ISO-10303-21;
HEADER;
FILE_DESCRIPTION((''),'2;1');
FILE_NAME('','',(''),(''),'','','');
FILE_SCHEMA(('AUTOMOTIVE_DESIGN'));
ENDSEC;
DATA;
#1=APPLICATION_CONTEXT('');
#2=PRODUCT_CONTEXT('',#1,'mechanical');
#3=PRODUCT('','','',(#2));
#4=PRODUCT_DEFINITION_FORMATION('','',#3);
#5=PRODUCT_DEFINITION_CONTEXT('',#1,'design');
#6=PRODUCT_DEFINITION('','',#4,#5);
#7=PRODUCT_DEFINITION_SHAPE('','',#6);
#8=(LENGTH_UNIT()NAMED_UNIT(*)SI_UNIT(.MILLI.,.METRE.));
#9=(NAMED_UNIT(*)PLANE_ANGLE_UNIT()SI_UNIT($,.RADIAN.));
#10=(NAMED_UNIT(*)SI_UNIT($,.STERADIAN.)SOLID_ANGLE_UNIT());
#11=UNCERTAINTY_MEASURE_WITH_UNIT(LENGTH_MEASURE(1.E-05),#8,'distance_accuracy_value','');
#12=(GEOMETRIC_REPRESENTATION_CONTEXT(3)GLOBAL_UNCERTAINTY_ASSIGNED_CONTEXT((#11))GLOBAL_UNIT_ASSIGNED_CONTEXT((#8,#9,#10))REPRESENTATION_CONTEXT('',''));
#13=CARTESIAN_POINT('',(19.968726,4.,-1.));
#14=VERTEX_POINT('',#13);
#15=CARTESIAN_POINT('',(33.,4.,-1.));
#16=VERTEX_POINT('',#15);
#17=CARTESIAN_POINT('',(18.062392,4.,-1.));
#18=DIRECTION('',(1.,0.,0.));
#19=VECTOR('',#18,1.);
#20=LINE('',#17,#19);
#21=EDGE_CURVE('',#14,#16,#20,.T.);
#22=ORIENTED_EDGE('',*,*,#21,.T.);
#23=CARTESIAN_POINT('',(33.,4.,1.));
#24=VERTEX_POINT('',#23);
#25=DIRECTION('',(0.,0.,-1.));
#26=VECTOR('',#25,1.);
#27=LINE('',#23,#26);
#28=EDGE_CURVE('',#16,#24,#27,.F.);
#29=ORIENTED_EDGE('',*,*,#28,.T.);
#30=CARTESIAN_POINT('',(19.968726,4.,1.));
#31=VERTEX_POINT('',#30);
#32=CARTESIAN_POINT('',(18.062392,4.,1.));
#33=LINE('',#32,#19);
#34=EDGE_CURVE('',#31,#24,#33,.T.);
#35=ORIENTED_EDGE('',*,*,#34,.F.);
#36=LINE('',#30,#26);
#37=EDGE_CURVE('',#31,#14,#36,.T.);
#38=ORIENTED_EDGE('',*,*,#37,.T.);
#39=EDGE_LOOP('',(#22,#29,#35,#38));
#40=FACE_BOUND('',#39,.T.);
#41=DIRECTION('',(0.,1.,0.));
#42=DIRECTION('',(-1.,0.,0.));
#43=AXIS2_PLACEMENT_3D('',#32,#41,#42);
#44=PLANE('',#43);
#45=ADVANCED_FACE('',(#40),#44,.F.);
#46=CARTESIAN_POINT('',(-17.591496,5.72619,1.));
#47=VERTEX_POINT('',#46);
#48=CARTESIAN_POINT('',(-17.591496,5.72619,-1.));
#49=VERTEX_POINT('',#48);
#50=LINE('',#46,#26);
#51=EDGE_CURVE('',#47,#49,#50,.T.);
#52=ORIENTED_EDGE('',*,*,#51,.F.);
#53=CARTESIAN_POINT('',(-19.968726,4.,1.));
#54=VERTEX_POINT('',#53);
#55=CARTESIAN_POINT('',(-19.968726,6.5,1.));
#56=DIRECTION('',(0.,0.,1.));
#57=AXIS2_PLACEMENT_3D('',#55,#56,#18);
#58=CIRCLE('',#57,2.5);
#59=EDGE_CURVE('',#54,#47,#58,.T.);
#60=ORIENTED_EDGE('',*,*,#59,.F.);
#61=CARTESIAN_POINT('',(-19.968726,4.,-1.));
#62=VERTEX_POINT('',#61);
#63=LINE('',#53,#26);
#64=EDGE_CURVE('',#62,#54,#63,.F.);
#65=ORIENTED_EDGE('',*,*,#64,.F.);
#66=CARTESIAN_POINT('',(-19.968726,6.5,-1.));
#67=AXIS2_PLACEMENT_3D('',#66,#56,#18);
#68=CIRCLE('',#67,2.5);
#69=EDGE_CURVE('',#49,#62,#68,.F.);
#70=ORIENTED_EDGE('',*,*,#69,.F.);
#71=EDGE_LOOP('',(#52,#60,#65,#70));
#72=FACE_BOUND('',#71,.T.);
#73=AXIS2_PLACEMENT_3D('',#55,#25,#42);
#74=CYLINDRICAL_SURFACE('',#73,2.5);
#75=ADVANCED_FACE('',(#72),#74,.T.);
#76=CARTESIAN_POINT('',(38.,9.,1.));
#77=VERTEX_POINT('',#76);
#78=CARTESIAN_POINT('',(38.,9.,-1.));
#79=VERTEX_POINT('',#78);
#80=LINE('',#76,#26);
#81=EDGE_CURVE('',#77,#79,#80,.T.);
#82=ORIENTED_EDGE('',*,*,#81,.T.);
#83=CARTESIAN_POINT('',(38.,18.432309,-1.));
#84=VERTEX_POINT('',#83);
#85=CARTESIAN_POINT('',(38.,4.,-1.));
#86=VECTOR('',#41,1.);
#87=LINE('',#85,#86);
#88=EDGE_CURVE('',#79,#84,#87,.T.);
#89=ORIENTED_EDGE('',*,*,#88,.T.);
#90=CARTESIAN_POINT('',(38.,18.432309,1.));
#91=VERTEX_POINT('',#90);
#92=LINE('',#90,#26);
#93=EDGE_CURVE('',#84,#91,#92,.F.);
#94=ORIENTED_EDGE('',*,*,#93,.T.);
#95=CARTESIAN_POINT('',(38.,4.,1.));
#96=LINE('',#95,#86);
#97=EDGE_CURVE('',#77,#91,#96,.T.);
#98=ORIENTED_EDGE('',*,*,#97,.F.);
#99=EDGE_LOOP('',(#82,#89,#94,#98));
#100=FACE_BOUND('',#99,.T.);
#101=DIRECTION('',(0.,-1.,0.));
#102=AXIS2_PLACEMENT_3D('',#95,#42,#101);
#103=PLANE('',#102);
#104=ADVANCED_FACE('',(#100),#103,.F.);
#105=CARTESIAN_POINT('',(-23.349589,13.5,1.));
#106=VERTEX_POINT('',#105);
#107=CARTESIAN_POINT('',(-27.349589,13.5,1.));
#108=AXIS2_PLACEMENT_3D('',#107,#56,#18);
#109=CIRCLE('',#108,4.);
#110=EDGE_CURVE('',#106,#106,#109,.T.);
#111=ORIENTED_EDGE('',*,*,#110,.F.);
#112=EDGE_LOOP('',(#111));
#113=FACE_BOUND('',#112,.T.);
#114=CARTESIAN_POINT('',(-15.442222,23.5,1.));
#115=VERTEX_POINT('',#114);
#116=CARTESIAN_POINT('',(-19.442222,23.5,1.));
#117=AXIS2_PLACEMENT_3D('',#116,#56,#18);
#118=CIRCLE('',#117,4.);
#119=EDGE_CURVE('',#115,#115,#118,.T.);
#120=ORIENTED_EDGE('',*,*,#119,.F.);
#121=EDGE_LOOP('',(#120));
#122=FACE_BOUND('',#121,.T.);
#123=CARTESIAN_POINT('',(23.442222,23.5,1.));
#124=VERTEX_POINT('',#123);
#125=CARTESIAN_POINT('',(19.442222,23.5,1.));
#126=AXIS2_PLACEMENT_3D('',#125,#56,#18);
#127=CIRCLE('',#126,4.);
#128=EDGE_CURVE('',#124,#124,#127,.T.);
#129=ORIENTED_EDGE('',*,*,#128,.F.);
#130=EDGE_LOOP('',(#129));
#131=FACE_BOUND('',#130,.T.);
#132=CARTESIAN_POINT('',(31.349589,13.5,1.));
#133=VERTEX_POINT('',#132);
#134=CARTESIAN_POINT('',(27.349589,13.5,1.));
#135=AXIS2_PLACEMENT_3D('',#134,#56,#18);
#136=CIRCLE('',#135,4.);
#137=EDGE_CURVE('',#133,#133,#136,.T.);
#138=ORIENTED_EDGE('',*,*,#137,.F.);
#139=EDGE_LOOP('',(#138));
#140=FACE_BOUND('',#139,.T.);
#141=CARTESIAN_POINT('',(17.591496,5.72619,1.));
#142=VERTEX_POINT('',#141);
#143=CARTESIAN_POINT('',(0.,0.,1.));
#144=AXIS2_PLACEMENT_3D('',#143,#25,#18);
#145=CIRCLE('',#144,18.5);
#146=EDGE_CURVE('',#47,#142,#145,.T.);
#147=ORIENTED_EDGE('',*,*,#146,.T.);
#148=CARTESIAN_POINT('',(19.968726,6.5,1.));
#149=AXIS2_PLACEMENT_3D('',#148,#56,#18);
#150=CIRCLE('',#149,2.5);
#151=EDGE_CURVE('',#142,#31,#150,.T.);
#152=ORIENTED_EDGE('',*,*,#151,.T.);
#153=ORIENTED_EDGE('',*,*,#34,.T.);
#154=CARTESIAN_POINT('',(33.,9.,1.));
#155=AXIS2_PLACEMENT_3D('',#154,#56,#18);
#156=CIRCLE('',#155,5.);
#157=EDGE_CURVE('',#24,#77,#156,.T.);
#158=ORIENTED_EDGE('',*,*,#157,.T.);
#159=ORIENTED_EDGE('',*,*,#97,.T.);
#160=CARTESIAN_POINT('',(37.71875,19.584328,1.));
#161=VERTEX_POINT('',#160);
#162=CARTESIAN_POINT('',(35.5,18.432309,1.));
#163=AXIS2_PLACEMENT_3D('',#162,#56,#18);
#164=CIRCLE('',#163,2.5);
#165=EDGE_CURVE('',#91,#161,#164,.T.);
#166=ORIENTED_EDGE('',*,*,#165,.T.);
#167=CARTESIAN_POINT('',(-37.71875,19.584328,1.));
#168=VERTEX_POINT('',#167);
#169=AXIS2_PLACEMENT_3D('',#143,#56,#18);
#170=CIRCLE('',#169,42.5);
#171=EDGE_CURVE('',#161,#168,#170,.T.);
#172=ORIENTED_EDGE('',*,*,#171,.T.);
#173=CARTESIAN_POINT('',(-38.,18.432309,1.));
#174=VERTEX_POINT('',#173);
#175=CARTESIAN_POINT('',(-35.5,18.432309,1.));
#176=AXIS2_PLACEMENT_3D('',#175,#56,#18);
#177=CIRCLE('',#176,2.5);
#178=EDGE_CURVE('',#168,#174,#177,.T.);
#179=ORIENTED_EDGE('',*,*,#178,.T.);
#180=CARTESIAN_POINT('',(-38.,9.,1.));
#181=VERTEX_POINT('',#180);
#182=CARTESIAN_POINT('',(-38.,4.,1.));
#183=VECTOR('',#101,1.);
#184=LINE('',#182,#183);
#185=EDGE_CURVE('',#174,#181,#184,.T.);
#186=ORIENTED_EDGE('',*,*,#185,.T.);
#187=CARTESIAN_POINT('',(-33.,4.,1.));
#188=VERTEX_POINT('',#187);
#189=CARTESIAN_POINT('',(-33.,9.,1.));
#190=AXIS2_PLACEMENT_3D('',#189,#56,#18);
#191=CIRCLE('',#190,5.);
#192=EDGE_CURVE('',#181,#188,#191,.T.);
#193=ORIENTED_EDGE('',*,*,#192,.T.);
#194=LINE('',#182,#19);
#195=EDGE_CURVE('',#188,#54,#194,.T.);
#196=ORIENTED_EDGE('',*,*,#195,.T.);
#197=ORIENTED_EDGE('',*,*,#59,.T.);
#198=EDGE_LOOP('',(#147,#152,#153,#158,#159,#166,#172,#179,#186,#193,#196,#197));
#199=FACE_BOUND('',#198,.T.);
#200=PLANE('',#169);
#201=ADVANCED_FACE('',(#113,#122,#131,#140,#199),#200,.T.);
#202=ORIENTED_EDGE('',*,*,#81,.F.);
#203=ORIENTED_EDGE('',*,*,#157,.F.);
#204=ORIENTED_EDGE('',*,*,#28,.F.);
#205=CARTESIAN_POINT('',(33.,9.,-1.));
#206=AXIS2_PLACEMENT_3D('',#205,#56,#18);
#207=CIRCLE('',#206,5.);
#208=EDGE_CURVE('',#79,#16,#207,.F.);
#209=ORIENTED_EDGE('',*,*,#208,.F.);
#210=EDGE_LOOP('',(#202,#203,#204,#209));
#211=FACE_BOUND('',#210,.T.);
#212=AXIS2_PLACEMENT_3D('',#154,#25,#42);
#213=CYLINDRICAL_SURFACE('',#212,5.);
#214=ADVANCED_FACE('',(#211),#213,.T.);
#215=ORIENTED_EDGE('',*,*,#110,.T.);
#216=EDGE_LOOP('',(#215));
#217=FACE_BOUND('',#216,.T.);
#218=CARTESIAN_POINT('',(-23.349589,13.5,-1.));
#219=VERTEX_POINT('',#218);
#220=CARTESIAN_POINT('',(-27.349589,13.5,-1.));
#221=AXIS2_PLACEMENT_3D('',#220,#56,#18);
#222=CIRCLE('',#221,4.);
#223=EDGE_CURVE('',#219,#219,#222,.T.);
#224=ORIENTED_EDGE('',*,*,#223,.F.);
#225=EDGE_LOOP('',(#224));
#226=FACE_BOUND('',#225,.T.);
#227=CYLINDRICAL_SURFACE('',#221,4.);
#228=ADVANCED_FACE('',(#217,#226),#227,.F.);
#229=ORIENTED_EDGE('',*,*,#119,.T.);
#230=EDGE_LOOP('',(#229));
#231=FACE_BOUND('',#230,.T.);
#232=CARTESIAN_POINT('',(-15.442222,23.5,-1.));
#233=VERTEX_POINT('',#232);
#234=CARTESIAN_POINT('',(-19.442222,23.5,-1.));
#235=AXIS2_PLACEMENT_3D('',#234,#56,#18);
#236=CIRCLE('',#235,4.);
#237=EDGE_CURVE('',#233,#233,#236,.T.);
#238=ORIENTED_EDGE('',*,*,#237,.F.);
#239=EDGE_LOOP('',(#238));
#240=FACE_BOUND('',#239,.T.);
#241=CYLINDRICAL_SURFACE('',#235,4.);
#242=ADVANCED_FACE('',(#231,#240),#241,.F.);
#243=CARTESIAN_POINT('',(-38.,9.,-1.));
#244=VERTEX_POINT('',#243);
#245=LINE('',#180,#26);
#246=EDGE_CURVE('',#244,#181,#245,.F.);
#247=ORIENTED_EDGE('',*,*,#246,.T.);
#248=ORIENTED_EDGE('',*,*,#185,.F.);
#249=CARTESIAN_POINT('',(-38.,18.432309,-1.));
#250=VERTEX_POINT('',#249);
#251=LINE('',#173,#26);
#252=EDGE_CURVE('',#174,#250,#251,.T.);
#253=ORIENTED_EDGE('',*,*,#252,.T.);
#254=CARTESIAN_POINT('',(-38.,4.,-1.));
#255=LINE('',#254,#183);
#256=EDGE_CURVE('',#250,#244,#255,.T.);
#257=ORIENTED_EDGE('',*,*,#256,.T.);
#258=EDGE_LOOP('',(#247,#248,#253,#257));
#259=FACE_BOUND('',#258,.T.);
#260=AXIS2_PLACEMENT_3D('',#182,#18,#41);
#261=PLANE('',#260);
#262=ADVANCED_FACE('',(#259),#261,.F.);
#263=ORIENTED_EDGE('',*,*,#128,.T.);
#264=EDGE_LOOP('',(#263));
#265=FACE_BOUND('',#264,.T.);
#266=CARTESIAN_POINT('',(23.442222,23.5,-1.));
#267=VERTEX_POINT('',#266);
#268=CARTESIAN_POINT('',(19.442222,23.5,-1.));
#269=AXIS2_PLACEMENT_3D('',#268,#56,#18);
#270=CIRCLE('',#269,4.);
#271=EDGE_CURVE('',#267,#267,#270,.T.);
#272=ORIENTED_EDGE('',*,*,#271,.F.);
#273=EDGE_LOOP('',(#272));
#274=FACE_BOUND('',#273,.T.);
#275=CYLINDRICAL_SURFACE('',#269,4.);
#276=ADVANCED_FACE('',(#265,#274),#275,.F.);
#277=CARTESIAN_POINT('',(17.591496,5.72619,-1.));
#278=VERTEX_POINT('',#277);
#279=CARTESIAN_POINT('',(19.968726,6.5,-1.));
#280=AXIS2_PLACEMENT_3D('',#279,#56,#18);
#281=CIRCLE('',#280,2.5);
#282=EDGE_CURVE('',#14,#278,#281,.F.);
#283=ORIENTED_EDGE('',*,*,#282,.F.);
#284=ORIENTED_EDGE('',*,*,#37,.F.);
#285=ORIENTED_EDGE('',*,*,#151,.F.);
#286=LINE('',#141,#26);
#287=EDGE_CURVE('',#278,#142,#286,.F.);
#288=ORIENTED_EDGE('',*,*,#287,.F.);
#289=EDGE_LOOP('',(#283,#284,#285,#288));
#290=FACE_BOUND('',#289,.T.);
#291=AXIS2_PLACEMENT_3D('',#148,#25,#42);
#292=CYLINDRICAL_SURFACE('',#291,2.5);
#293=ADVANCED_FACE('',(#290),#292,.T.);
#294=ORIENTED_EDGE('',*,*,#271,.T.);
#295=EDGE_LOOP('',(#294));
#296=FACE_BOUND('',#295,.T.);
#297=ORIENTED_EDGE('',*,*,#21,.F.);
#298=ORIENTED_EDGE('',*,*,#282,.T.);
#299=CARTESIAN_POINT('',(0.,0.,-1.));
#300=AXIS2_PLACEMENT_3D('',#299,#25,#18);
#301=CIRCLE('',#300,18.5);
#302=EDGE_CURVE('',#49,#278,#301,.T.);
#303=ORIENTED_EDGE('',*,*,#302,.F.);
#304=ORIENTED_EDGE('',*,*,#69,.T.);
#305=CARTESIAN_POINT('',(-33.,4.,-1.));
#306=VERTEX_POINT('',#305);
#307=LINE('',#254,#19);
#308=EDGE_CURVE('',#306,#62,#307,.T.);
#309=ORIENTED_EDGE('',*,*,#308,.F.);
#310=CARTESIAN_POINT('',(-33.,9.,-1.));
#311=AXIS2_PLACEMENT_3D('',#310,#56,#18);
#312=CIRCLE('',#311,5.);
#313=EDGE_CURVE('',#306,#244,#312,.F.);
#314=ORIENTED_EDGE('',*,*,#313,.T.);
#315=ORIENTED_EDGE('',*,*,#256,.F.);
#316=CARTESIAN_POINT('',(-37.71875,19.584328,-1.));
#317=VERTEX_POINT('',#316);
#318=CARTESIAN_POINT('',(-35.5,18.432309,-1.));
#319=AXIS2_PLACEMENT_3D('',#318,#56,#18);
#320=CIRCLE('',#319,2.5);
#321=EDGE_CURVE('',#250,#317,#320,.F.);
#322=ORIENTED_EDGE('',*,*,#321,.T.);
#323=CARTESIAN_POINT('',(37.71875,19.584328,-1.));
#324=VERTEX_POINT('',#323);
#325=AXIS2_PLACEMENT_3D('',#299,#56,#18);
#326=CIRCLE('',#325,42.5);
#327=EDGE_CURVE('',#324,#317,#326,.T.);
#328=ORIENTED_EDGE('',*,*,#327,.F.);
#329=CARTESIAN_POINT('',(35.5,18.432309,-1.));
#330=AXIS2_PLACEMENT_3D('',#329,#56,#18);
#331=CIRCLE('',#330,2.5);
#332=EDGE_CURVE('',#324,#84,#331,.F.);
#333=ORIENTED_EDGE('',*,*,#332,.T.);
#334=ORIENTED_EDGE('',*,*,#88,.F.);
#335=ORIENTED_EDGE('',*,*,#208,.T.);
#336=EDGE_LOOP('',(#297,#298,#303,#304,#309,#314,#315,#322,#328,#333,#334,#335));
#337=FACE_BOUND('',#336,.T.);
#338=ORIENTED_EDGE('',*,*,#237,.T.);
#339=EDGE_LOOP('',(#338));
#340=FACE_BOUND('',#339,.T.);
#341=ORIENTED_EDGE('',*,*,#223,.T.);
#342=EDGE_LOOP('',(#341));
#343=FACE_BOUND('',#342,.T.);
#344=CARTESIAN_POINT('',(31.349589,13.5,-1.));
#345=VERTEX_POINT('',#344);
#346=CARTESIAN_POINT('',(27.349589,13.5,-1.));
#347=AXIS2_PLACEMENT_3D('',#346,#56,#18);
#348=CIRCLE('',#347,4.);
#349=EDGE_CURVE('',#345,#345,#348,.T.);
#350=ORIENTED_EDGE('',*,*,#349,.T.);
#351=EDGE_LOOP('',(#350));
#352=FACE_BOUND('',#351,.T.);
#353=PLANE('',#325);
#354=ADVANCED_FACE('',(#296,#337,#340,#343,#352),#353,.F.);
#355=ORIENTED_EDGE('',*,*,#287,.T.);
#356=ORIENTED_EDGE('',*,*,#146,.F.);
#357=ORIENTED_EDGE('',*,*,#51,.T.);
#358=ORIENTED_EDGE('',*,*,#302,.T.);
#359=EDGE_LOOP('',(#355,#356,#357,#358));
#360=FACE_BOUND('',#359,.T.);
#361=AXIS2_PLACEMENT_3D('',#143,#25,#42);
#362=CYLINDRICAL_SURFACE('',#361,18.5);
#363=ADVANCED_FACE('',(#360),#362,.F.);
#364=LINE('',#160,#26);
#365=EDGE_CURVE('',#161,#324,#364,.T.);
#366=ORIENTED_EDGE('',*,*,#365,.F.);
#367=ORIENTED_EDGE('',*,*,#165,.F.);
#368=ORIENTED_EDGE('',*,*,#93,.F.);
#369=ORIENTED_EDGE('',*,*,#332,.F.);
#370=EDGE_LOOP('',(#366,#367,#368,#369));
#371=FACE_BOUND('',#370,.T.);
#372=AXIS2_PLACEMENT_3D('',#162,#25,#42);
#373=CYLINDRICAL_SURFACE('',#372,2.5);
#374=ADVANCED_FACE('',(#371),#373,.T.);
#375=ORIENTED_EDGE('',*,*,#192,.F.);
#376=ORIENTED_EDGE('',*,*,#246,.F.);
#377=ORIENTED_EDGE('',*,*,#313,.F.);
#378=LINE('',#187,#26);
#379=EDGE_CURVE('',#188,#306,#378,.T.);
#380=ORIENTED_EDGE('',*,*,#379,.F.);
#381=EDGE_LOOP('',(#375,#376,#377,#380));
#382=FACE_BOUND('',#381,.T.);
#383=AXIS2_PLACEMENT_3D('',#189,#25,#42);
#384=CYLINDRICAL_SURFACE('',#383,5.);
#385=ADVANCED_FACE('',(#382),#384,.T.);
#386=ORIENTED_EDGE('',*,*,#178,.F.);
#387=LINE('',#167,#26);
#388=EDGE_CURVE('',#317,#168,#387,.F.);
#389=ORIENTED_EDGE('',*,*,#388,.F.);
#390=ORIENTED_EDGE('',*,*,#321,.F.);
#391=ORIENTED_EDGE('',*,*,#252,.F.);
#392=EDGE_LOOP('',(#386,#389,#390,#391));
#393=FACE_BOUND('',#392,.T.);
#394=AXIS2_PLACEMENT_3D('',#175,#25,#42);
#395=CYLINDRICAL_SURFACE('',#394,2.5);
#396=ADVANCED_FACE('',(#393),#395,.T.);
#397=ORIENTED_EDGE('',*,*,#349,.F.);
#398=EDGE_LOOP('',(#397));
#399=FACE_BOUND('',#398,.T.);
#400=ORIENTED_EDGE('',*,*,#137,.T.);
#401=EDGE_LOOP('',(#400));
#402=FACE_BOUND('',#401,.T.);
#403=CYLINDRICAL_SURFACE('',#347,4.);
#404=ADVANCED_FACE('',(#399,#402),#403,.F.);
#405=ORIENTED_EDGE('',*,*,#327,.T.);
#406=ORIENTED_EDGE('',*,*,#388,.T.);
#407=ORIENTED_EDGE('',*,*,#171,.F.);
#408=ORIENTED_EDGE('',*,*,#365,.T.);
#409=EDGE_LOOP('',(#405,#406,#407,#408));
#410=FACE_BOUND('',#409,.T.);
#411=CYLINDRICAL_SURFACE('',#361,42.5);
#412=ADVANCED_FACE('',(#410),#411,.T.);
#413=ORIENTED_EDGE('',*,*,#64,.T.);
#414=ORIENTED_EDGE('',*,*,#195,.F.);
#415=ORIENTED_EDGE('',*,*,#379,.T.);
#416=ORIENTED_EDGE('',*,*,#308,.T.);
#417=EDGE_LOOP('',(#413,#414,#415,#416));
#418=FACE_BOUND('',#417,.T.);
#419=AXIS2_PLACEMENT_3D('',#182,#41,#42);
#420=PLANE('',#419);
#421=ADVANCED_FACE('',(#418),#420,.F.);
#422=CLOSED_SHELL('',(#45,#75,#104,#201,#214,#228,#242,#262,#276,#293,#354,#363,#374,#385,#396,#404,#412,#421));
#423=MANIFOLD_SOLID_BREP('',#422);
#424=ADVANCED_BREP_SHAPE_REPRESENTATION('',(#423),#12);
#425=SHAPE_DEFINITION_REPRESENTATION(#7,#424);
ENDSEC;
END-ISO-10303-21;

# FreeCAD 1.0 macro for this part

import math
import FreeCAD as App
import Part
import Sketcher


def edges_at(feature, points):
    """Names of the edges that pass closest to the given points."""
    edges = feature.Shape.Edges
    near = lambda p: min(range(len(edges)), key=lambda i: edges[i].distToShape(Part.Vertex(*p))[0])
    return sorted({f"Edge{near(p) + 1}" for p in points})

doc = App.newDocument("Part")
body = doc.addObject("PartDesign::Body", "Body")

# Sketch on XY plane
sketch1 = body.newObject("Sketcher::SketchObject", "Sketch")
sketch1.AttachmentSupport = (doc.getObject("XY_Plane"), [""])
sketch1.MapMode = "FlatFace"
sketch1.addGeometry([
    Part.LineSegment(App.Vector(-38, 4, 0), App.Vector(-18.062392, 4, 0)),  # 0
    Part.ArcOfCircle(Part.Circle(App.Vector(0, 0, 0), App.Vector(0, 0, 1), 18.5), math.radians(12.48689), math.radians(167.51311)),  # 1
    Part.LineSegment(App.Vector(18.062392, 4, 0), App.Vector(38, 4, 0)),  # 2
    Part.LineSegment(App.Vector(38, 4, 0), App.Vector(38, 19.032866, 0)),  # 3
    Part.ArcOfCircle(Part.Circle(App.Vector(0, 0, 0), App.Vector(0, 0, 1), 42.5), math.radians(26.604682), math.radians(153.395318)),  # 4
    Part.LineSegment(App.Vector(-38, 19.032866, 0), App.Vector(-38, 4, 0)),  # 5
], False)
sketch1.addConstraint([
    Sketcher.Constraint("Coincident", 0, 2, 1, 2),
    Sketcher.Constraint("Coincident", 1, 1, 2, 1),
    Sketcher.Constraint("Coincident", 2, 2, 3, 1),
    Sketcher.Constraint("Coincident", 3, 2, 4, 1),
    Sketcher.Constraint("Coincident", 4, 2, 5, 1),
    Sketcher.Constraint("Coincident", 5, 2, 0, 1),
    Sketcher.Constraint("Horizontal", 0),
    Sketcher.Constraint("Horizontal", 2),
    Sketcher.Constraint("Vertical", 3),
    Sketcher.Constraint("Vertical", 5),
    Sketcher.Constraint("Coincident", 1, 3, -1, 1),
    Sketcher.Constraint("Coincident", 4, 3, -1, 1),
    Sketcher.Constraint("Symmetric", 2, 2, 5, 2, -2),
    Sketcher.Constraint("Radius", 1, 18.5),
    Sketcher.Constraint("Radius", 4, 42.5),
    Sketcher.Constraint("DistanceY", -1, 1, 0, 2, 4.0),
    Sketcher.Constraint("DistanceX", -1, 1, 2, 2, 38.0),
])
pad1 = body.newObject("PartDesign::Pad", "Pad")
pad1.Profile = sketch1
pad1.Length = 2
pad1.Midplane = True

# Sketch on XY plane
sketch2 = body.newObject("Sketcher::SketchObject", "Sketch001")
sketch2.AttachmentSupport = (doc.getObject("XY_Plane"), [""])
sketch2.MapMode = "FlatFace"
sketch2.AttachmentOffset = App.Placement(App.Vector(0, 0, 1), App.Rotation())
sketch2.addGeometry([
    Part.Circle(App.Vector(-27.349589, 13.5, 0), App.Vector(0, 0, 1), 4),
    Part.Circle(App.Vector(-19.442222, 23.5, 0), App.Vector(0, 0, 1), 4),
    Part.Circle(App.Vector(19.442222, 23.5, 0), App.Vector(0, 0, 1), 4),
    Part.Circle(App.Vector(27.349589, 13.5, 0), App.Vector(0, 0, 1), 4),
], False)
sketch2.addConstraint([
    Sketcher.Constraint("Equal", 0, 1),
    Sketcher.Constraint("Equal", 1, 2),
    Sketcher.Constraint("Equal", 2, 3),
    Sketcher.Constraint("Symmetric", 1, 3, 2, 3, -2),
    Sketcher.Constraint("Symmetric", 0, 3, 3, 3, -2),
    Sketcher.Constraint("Diameter", 0, 8.0),
    Sketcher.Constraint("DistanceY", 0, 3, 1, 3, 10.0),
    Sketcher.Constraint("DistanceY", -1, 1, 0, 3, 13.5),
    Sketcher.Constraint("DistanceX", 0, 3, -1, 1, 27.349589),
    Sketcher.Constraint("DistanceX", 0, 3, 2, 3, 46.791811),
])
pocket1 = body.newObject("PartDesign::Pocket", "Pocket")
pocket1.Profile = sketch2
pocket1.Type = "ThroughAll"
doc.recompute()

fillet = body.newObject("PartDesign::Fillet", "Fillet")
fillet.Base = (pocket1, edges_at(pocket1, [(38, 4, 0), (-38, 4, 0)]))
fillet.Radius = 5
doc.recompute()

fillet2 = body.newObject("PartDesign::Fillet", "Fillet001")
fillet2.Base = (fillet, edges_at(fillet, [
    (-38, 19.033, 0),
    (38, 19.033, 0),
    (18.062, 4, 0),
    (-18.062, 4, 0),
]))
fillet2.Radius = 2.5

doc.recompute()
